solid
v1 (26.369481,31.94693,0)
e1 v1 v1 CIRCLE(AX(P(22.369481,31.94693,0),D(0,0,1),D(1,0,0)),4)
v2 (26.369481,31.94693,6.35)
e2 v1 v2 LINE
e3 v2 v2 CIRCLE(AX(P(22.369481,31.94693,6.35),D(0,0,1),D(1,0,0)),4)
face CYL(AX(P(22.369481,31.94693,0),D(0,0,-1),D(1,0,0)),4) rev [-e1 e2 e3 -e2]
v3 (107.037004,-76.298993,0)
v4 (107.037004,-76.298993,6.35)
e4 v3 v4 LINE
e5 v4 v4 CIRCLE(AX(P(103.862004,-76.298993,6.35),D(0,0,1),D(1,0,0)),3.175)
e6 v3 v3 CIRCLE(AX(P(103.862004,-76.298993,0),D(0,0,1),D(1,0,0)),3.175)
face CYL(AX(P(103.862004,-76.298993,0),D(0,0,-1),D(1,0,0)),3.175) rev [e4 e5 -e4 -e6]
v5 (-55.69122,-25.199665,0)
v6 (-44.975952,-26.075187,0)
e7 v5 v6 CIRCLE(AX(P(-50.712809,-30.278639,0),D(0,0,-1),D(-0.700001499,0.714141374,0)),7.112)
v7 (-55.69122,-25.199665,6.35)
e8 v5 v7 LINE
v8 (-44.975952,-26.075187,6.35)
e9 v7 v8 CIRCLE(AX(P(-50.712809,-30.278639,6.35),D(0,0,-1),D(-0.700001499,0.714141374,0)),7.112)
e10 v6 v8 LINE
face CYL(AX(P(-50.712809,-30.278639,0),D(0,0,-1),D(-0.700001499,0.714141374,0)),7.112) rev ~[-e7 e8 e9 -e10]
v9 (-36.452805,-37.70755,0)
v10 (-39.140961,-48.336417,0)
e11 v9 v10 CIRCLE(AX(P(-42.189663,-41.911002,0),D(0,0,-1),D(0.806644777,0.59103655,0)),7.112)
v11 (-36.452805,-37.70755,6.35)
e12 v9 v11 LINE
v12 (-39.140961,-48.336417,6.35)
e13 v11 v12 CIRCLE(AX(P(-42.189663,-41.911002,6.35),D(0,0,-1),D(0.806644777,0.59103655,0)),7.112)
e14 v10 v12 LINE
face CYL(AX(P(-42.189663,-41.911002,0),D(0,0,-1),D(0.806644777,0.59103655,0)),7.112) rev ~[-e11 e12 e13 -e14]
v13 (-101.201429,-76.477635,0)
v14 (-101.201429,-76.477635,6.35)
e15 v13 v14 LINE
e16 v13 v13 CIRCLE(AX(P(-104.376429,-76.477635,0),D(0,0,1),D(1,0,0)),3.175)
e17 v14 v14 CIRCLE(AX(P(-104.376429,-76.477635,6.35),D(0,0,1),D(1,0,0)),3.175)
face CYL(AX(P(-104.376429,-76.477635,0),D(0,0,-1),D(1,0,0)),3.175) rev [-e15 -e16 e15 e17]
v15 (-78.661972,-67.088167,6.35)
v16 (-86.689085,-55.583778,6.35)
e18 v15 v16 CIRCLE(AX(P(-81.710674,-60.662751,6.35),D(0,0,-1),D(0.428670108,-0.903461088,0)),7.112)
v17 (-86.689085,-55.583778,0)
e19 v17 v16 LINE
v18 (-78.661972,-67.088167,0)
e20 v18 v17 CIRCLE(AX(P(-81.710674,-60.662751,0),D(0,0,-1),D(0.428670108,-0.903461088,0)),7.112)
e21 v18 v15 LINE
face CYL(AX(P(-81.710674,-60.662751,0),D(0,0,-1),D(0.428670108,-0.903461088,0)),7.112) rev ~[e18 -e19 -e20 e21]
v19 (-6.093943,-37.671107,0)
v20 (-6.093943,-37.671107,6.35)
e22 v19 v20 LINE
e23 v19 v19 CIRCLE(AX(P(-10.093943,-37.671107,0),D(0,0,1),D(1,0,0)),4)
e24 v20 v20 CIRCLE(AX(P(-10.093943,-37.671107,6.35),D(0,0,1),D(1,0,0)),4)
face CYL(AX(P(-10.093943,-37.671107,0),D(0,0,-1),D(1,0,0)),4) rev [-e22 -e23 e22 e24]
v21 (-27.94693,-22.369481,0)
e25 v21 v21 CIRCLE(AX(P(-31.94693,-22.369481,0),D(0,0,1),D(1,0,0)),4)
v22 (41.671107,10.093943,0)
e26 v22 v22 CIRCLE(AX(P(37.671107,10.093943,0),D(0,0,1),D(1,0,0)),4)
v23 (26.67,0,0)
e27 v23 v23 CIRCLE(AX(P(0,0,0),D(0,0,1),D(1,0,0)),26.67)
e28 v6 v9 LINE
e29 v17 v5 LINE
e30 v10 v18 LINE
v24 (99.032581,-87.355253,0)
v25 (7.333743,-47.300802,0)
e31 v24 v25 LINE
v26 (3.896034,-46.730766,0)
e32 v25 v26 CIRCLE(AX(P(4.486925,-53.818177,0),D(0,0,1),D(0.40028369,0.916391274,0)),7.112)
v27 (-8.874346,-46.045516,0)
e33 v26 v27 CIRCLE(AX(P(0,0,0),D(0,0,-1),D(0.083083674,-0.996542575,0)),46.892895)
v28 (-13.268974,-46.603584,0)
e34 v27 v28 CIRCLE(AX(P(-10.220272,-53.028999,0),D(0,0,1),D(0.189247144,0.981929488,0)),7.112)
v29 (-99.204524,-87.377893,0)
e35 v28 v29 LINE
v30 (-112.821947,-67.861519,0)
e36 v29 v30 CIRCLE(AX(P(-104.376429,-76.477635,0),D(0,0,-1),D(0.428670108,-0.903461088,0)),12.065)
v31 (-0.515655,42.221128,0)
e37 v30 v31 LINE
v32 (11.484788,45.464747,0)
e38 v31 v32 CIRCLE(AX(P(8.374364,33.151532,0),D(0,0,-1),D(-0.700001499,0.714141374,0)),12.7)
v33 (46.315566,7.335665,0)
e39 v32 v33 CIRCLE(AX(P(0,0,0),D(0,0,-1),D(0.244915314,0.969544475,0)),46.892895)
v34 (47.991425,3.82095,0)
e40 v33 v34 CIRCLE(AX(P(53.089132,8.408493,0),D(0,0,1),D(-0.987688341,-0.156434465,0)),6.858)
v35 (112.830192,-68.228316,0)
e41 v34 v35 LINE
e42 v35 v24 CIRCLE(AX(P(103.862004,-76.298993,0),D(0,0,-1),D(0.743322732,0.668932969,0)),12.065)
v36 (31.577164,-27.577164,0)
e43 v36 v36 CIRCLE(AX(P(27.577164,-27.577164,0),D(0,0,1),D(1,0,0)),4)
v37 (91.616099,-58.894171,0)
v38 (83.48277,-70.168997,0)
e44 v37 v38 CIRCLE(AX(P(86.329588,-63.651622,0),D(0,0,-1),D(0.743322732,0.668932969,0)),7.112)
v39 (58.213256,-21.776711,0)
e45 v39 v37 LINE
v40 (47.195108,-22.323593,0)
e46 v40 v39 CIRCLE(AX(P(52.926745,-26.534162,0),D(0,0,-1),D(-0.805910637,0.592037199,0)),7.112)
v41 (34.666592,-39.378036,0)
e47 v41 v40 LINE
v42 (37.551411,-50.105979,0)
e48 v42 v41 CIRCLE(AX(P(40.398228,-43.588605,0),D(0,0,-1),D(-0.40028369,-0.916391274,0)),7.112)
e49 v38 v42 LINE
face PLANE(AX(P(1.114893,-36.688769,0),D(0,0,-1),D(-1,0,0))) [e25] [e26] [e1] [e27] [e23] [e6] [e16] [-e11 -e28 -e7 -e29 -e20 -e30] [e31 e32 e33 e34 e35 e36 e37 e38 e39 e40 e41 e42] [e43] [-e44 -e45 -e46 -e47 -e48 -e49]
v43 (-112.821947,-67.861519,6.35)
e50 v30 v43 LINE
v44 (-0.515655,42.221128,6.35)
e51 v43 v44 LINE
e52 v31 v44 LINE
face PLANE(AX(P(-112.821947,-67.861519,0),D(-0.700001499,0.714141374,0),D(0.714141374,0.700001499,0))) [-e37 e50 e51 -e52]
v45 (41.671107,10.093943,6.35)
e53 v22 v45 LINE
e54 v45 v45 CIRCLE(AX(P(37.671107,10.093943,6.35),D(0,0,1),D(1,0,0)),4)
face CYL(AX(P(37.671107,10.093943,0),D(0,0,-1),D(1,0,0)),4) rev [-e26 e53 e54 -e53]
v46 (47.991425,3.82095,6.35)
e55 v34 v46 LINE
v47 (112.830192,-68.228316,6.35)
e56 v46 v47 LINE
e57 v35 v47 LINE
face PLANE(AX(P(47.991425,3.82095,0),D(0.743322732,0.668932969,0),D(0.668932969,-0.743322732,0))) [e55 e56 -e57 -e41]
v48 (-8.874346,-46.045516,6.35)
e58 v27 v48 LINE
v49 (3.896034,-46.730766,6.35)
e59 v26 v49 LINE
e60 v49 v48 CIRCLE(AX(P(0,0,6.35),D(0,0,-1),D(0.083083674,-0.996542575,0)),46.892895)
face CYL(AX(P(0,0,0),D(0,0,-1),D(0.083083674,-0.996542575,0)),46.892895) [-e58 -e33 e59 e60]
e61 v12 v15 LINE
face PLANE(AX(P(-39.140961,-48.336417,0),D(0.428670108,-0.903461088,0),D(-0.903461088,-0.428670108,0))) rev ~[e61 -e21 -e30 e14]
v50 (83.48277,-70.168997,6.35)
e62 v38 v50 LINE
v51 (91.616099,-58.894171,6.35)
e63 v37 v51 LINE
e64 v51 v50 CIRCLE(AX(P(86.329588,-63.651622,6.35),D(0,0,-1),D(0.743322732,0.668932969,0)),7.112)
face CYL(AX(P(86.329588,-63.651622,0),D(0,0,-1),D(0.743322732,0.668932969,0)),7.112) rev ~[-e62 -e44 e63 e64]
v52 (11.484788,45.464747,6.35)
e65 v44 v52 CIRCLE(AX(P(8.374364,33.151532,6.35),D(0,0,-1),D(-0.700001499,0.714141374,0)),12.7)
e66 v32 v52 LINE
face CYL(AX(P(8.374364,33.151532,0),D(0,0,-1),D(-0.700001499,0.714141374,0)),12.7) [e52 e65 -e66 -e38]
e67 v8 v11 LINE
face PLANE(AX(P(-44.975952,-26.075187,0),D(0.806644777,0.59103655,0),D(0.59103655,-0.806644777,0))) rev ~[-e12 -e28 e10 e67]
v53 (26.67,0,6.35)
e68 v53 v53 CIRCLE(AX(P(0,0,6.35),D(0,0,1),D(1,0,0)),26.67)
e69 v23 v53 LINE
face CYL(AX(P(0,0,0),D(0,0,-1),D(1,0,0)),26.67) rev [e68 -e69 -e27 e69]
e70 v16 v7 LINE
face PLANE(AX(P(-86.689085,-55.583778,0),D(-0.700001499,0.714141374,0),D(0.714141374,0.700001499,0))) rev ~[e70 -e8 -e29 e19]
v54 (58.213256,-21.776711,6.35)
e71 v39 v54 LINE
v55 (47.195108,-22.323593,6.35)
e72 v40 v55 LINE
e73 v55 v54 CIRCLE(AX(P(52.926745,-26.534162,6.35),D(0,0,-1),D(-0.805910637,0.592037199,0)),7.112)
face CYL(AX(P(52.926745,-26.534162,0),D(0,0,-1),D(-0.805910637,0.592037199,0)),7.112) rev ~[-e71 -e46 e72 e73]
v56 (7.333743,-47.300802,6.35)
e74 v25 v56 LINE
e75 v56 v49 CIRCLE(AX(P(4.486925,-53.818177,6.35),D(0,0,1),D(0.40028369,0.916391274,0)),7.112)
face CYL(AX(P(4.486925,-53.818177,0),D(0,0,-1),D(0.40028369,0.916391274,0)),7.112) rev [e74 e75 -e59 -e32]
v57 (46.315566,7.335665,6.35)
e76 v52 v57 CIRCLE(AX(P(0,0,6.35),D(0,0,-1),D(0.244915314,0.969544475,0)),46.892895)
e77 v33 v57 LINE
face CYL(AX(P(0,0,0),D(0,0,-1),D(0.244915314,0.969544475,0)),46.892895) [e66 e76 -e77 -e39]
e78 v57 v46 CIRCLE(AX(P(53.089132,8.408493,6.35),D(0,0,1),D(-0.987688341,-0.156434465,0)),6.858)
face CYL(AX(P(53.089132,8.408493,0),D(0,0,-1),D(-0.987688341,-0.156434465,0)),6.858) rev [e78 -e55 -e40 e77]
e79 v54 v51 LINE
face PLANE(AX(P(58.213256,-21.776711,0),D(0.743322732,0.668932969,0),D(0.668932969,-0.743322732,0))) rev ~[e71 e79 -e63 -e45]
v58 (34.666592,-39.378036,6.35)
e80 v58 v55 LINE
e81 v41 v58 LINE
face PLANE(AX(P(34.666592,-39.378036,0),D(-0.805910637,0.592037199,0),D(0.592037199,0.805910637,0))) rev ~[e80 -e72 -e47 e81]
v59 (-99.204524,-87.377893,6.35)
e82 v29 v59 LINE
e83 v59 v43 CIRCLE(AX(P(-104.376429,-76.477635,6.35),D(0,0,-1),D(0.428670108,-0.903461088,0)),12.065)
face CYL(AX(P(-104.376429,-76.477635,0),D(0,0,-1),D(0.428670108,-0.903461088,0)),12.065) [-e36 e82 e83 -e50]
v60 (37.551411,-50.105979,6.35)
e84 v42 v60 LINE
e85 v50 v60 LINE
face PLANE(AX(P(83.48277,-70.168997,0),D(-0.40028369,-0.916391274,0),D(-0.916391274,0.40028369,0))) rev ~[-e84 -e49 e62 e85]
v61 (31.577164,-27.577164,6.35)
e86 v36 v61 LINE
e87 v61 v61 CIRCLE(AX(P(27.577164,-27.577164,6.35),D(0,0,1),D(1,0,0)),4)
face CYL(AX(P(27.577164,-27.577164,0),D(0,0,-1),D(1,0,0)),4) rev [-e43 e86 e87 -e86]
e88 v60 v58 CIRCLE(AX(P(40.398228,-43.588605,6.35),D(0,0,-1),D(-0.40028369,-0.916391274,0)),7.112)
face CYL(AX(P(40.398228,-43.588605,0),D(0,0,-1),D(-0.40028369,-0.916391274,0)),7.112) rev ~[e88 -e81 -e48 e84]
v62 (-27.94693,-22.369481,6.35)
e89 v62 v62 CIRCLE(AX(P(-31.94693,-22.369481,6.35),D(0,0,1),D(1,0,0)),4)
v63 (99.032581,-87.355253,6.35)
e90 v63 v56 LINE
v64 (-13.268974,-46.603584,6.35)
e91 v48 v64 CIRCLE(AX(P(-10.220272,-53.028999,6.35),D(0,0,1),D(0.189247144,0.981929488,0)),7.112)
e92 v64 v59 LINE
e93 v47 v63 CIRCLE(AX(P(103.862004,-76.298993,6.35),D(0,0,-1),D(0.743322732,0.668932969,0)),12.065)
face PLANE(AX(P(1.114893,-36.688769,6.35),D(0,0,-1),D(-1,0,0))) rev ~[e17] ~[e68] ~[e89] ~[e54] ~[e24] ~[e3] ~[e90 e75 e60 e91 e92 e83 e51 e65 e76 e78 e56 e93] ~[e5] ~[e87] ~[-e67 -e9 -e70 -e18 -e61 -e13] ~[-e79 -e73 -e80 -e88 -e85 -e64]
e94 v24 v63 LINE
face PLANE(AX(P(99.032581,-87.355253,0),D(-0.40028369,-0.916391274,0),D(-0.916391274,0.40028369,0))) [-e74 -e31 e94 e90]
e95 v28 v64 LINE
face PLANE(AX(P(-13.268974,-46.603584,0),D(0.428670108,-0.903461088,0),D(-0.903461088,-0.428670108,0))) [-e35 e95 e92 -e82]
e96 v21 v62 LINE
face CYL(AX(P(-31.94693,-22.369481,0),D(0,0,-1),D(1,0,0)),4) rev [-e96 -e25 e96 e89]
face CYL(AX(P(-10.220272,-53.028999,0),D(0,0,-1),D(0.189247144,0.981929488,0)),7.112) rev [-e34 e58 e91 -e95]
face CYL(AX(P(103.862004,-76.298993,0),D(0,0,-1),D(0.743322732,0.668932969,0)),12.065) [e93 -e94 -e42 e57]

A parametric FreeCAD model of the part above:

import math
import FreeCAD as App
import Part
import Sketcher

V = App.Vector
Q = App.Units.Quantity

doc = App.newDocument("Part")
body = doc.addObject("PartDesign::Body", "Body")

# Sketch on XY plane
sketch1 = doc.addObject("Sketcher::SketchObject", "Sketch")
body.addObject(sketch1)
sketch1.AttachmentSupport = (doc.XY_Plane, [""])
sketch1.MapMode = "FlatFace"
sketch1.addGeometry(Part.LineSegment(V(-0.515655, 42.221128, 0), V(-112.821947, -67.861519, 0)), False)
sketch1.addGeometry(Part.ArcOfCircle(Part.Circle(V(-104.376429, -76.477635, 0), V(0, 0, 1), 12.065), math.radians(134.427124), math.radians(295.383191)), False)
sketch1.addGeometry(Part.LineSegment(V(-99.204524, -87.377893, 0), V(-13.268974, -46.603584, 0)), False)
sketch1.addGeometry(Part.ArcOfCircle(Part.Circle(V(-10.220272, -53.028999, 0), V(0, 0, 1), 7.112), math.radians(79.091148), math.radians(115.383191)), False)
sketch1.addGeometry(Part.ArcOfCircle(Part.Circle(V(0, 0, 0), V(0, 0, 1), 46.892895), math.radians(-100.908852), math.radians(-85.234162)), False)
sketch1.addGeometry(Part.ArcOfCircle(Part.Circle(V(4.486925, -53.818177, 0), V(0, 0, 1), 7.112), math.radians(66.404086), math.radians(94.765838)), False)
sketch1.addGeometry(Part.LineSegment(V(7.333743, -47.300802, 0), V(99.032581, -87.355253, 0)), False)
sketch1.addGeometry(Part.ArcOfCircle(Part.Circle(V(103.862004, -76.298993, 0), V(0, 0, 1), 12.065), math.radians(-113.595915), math.radians(41.984764)), False)
sketch1.addGeometry(Part.LineSegment(V(112.830192, -68.228316, 0), V(47.991425, 3.82095, 0)), False)
sketch1.addGeometry(Part.ArcOfCircle(Part.Circle(V(53.089132, 8.408493, 0), V(0, 0, 1), 6.858), math.radians(-171), math.radians(-138.015236)), False)
sketch1.addGeometry(Part.ArcOfCircle(Part.Circle(V(0, 0, 0), V(0, 0, 1), 46.892895), math.radians(9), math.radians(75.823171)), False)
sketch1.addGeometry(Part.ArcOfCircle(Part.Circle(V(8.374364, 33.151532, 0), V(0, 0, 1), 12.7), math.radians(75.823171), math.radians(134.427124)), False)
sketch1.addGeometry(Part.Circle(V(103.862004, -76.298993, 0), V(0, 0, 1), 3.175), False)
sketch1.addGeometry(Part.LineSegment(V(34.666592, -39.378036, 0), V(47.195108, -22.323593, 0)), False)
sketch1.addGeometry(Part.ArcOfCircle(Part.Circle(V(52.926745, -26.534162, 0), V(0, 0, 1), 7.112), math.radians(41.984764), math.radians(143.698292)), False)
sketch1.addGeometry(Part.LineSegment(V(58.213256, -21.776711, 0), V(91.616099, -58.894171, 0)), False)
sketch1.addGeometry(Part.ArcOfCircle(Part.Circle(V(86.329588, -63.651622, 0), V(0, 0, 1), 7.112), math.radians(-113.595915), math.radians(41.984764)), False)
sketch1.addGeometry(Part.LineSegment(V(83.48277, -70.168997, 0), V(37.551411, -50.105979, 0)), False)
sketch1.addGeometry(Part.ArcOfCircle(Part.Circle(V(40.398228, -43.588605, 0), V(0, 0, 1), 7.112), math.radians(143.698292), math.radians(246.404085)), False)
sketch1.addGeometry(Part.Circle(V(27.577164, -27.577164, 0), V(0, 0, 1), 4), False)
sketch1.addGeometry(Part.Circle(V(-104.376429, -76.477635, 0), V(0, 0, 1), 3.175), False)
sketch1.addGeometry(Part.Circle(V(-10.093943, -37.671107, 0), V(0, 0, 1), 4), False)
sketch1.addGeometry(Part.Circle(V(-31.94693, -22.369481, 0), V(0, 0, 1), 4), False)
sketch1.addGeometry(Part.LineSegment(V(-86.689085, -55.583778, 0), V(-55.69122, -25.199665, 0)), False)
sketch1.addGeometry(Part.ArcOfCircle(Part.Circle(V(-50.712809, -30.278639, 0), V(0, 0, 1), 7.112), math.radians(36.230599), math.radians(134.427124)), False)
sketch1.addGeometry(Part.LineSegment(V(-44.975952, -26.075187, 0), V(-36.452805, -37.70755, 0)), False)
sketch1.addGeometry(Part.ArcOfCircle(Part.Circle(V(-42.189663, -41.911002, 0), V(0, 0, 1), 7.112), math.radians(-64.616809), math.radians(36.230599)), False)
sketch1.addGeometry(Part.LineSegment(V(-39.140961, -48.336417, 0), V(-78.661972, -67.088167, 0)), False)
sketch1.addGeometry(Part.ArcOfCircle(Part.Circle(V(-81.710674, -60.662751, 0), V(0, 0, 1), 7.112), math.radians(134.427124), math.radians(295.383191)), False)
sketch1.addGeometry(Part.Circle(V(0, 0, 0), V(0, 0, 1), 26.67), False)
sketch1.addGeometry(Part.Circle(V(37.671107, 10.093943, 0), V(0, 0, 1), 4), False)
sketch1.addGeometry(Part.Circle(V(22.369481, 31.94693, 0), V(0, 0, 1), 4), False)
sketch1.addConstraint(Sketcher.Constraint("Tangent", 0, 2, 1, 1))
sketch1.addConstraint(Sketcher.Constraint("Tangent", 1, 2, 2, 1))
sketch1.addConstraint(Sketcher.Constraint("Tangent", 2, 2, 3, 2))
sketch1.addConstraint(Sketcher.Constraint("Tangent", 3, 1, 4, 1))
sketch1.addConstraint(Sketcher.Constraint("Tangent", 4, 2, 5, 2))
sketch1.addConstraint(Sketcher.Constraint("Tangent", 5, 1, 6, 1))
sketch1.addConstraint(Sketcher.Constraint("Tangent", 6, 2, 7, 1))
sketch1.addConstraint(Sketcher.Constraint("Tangent", 7, 2, 8, 1))
sketch1.addConstraint(Sketcher.Constraint("Tangent", 8, 2, 9, 2))
sketch1.addConstraint(Sketcher.Constraint("Tangent", 9, 1, 10, 1))
sketch1.addConstraint(Sketcher.Constraint("Tangent", 10, 2, 11, 1))
sketch1.addConstraint(Sketcher.Constraint("Tangent", 11, 2, 0, 1))
sketch1.addConstraint(Sketcher.Constraint("Tangent", 13, 2, 14, 2))
sketch1.addConstraint(Sketcher.Constraint("Tangent", 14, 1, 15, 1))
sketch1.addConstraint(Sketcher.Constraint("Tangent", 15, 2, 16, 2))
sketch1.addConstraint(Sketcher.Constraint("Tangent", 16, 1, 17, 1))
sketch1.addConstraint(Sketcher.Constraint("Tangent", 17, 2, 18, 2))
sketch1.addConstraint(Sketcher.Constraint("Tangent", 18, 1, 13, 1))
sketch1.addConstraint(Sketcher.Constraint("Tangent", 23, 2, 24, 2))
sketch1.addConstraint(Sketcher.Constraint("Tangent", 24, 1, 25, 1))
sketch1.addConstraint(Sketcher.Constraint("Tangent", 25, 2, 26, 2))
sketch1.addConstraint(Sketcher.Constraint("Tangent", 26, 1, 27, 1))
sketch1.addConstraint(Sketcher.Constraint("Tangent", 27, 2, 28, 2))
sketch1.addConstraint(Sketcher.Constraint("Tangent", 28, 1, 23, 1))
sketch1.addConstraint(Sketcher.Constraint("Coincident", 4, 3, -1, 1))
sketch1.addConstraint(Sketcher.Constraint("Coincident", 10, 3, -1, 1))
sketch1.addConstraint(Sketcher.Constraint("Coincident", 29, 3, -1, 1))
sketch1.addConstraint(Sketcher.Constraint("Coincident", 12, 3, 7, 3))
sketch1.addConstraint(Sketcher.Constraint("Coincident", 20, 3, 1, 3))
sketch1.addConstraint(Sketcher.Constraint("Equal", 3, 5))
sketch1.addConstraint(Sketcher.Constraint("Equal", 1, 7))
sketch1.addConstraint(Sketcher.Constraint("Equal", 4, 10))
sketch1.addConstraint(Sketcher.Constraint("Equal", 5, 14))
sketch1.addConstraint(Sketcher.Constraint("Equal", 14, 16))
sketch1.addConstraint(Sketcher.Constraint("Equal", 16, 18))
sketch1.addConstraint(Sketcher.Constraint("Equal", 12, 20))
sketch1.addConstraint(Sketcher.Constraint("Equal", 19, 21))
sketch1.addConstraint(Sketcher.Constraint("Equal", 21, 22))
sketch1.addConstraint(Sketcher.Constraint("Equal", 18, 24))
sketch1.addConstraint(Sketcher.Constraint("Equal", 24, 26))
sketch1.addConstraint(Sketcher.Constraint("Equal", 26, 28))
sketch1.addConstraint(Sketcher.Constraint("Equal", 22, 30))
sketch1.addConstraint(Sketcher.Constraint("Equal", 30, 31))
sketch1.addConstraint(Sketcher.Constraint("Parallel", 8, 15))
sketch1.addConstraint(Sketcher.Constraint("Parallel", 6, 17))
sketch1.addConstraint(Sketcher.Constraint("Parallel", 0, 23))
sketch1.addConstraint(Sketcher.Constraint("Parallel", 2, 27))
sketch1.addConstraint(Sketcher.Constraint("Diameter", 29, Q("2.1 in")))
sketch1.addConstraint(Sketcher.Constraint("Radius", 11, Q("0.5 in")))
sketch1.addConstraint(Sketcher.Constraint("Diameter", 12, Q("0.25 in")))
sketch1.addConstraint(Sketcher.Constraint("Radius", 3, Q("0.28 in")))
sketch1.addConstraint(Sketcher.Constraint("Radius", 9, Q("0.27 in")))
sketch1.addConstraint(Sketcher.Constraint("Radius", 1, Q("0.475 in")))
sketch1.addConstraint(Sketcher.Constraint("Diameter", 19, 8.0))
sketch1.addConstraint(Sketcher.Constraint("Radius", 4, 46.892895))
sketch1.addConstraint(Sketcher.Constraint("DistanceY", 3, 3, -1, 1, 53.028999))
sketch1.addConstraint(Sketcher.Constraint("DistanceY", 26, 3, -1, 1, 41.911002))
sketch1.addConstraint(Sketcher.Constraint("DistanceX", -1, 1, 15, 2, 91.616099))
sketch1.addConstraint(Sketcher.Constraint("DistanceX", 3, 3, 18, 3, 50.618501))
sketch1.addConstraint(Sketcher.Constraint("DistanceX", 2, 2, 3, 3, 3.048702))
sketch1.addConstraint(Sketcher.Constraint("DistanceX", 2, 2, 5, 3, 17.755899))
sketch1.addConstraint(Sketcher.Constraint("DistanceY", 31, 3, 11, 2, 10.274198))
sketch1.addConstraint(Sketcher.Constraint("Distance", 6, 100.065159))
sketch1.addConstraint(Sketcher.Constraint("Distance", 27, 43.744011))
sketch1.addConstraint(Sketcher.Constraint("DistanceX", 1, 3, -1, 1, 104.376429))
sketch1.addConstraint(Sketcher.Constraint("DistanceY", 14, 3, -1, 1, 26.534162))
sketch1.addConstraint(Sketcher.Constraint("DistanceY", 16, 3, -1, 1, 63.651622))
sketch1.addConstraint(Sketcher.Constraint("DistanceX", 22, 3, -1, 1, 31.94693))
sketch1.addConstraint(Sketcher.Constraint("DistanceY", 22, 3, -1, 1, 22.369481))
sketch1.addConstraint(Sketcher.Constraint("DistanceX", 24, 3, -1, 1, 50.712809))
sketch1.addConstraint(Sketcher.Constraint("DistanceY", 24, 3, -1, 1, 30.278639))
sketch1.addConstraint(Sketcher.Constraint("DistanceX", -1, 1, 31, 3, 22.369481))
sketch1.addConstraint(Sketcher.Constraint("DistanceY", -1, 1, 31, 3, 31.94693))
sketch1.addConstraint(Sketcher.Constraint("DistanceX", -1, 1, 6, 2, 99.032581))
sketch1.addConstraint(Sketcher.Constraint("DistanceY", -1, 1, 8, 2, 3.82095))
sketch1.addConstraint(Sketcher.Constraint("DistanceY", 18, 3, 19, 3, 16.01144))
sketch1.addConstraint(Sketcher.Constraint("DistanceX", 19, 3, 14, 3, 25.34958))
sketch1.addConstraint(Sketcher.Constraint("DistanceX", 3, 3, 21, 3, 0.126329))
sketch1.addConstraint(Sketcher.Constraint("DistanceY", 3, 3, 21, 3, 15.357892))
sketch1.addConstraint(Sketcher.Constraint("DistanceY", 9, 3, 30, 3, 1.68545))
sketch1.addConstraint(Sketcher.Constraint("DistanceX", 30, 3, 9, 1, 8.644458))
pad1 = doc.addObject("PartDesign::Pad", "Pad")
body.addObject(pad1)
pad1.Profile = sketch1
pad1.Length = Q("0.25 in")

doc.recompute()
